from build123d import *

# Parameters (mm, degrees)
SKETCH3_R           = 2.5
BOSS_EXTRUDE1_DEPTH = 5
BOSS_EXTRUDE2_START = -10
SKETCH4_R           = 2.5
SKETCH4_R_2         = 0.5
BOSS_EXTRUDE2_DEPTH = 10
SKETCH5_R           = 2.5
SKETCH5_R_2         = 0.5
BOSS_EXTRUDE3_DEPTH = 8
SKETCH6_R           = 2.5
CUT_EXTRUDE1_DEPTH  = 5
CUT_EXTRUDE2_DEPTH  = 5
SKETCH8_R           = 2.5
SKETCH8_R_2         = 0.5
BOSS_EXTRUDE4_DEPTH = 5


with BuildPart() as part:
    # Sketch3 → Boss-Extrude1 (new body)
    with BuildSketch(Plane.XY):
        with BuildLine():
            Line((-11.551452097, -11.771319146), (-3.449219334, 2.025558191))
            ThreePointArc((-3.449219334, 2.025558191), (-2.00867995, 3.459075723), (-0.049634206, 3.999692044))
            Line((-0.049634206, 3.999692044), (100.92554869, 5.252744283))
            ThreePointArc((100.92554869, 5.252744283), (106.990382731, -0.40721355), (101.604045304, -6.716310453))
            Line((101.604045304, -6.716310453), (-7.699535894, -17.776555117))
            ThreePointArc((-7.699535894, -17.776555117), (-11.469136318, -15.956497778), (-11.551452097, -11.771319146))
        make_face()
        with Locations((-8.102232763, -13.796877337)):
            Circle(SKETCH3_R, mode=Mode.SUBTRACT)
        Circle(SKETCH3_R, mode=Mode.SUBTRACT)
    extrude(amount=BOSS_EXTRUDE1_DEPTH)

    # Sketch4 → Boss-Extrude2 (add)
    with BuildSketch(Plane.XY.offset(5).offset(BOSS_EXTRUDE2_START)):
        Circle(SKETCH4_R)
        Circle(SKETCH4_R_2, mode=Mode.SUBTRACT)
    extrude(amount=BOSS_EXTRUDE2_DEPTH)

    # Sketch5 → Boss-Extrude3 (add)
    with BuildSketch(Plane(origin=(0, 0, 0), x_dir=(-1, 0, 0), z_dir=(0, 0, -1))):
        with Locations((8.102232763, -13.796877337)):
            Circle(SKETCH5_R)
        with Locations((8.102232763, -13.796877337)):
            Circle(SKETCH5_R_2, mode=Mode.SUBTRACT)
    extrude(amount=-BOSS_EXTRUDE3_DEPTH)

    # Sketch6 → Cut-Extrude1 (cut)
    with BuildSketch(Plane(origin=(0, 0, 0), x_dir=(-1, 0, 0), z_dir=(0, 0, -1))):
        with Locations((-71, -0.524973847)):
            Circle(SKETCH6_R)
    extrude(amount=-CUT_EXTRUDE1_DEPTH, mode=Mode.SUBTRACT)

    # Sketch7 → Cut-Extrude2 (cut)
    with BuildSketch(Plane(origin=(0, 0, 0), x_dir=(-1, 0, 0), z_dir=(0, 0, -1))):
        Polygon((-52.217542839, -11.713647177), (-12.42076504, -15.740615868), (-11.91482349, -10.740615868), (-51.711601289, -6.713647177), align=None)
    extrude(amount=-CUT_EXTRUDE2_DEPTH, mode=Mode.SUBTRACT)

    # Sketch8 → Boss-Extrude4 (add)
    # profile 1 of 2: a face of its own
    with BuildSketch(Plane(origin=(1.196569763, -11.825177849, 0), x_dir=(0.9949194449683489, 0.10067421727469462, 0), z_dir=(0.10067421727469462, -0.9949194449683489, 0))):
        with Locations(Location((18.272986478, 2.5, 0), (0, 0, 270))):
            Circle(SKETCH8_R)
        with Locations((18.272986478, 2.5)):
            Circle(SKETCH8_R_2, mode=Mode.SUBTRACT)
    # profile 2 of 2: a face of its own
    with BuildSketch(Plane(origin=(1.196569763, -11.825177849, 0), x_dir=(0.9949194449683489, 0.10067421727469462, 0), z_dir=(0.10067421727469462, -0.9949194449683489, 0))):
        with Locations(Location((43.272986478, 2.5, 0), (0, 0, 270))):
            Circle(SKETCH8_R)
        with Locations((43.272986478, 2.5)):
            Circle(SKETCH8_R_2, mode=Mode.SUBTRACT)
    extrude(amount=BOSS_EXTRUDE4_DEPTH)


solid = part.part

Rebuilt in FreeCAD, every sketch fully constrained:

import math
import FreeCAD as App
import Part
import Sketcher
from FreeCAD import Vector


def add_polygon(sketch, points):
    """Adds a closed chain of lines whose ends are joined by coincident constraints."""
    first, n = sketch.GeometryCount, len(points)
    for a, b in zip(points, points[1:] + points[:1]):
        sketch.addGeometry(Part.LineSegment(App.Vector(*a, 0), App.Vector(*b, 0)), False)
    for i in range(n):
        sketch.addConstraint(Sketcher.Constraint("Coincident", first + i, 2, first + (i + 1) % n, 1))

doc = App.newDocument("Part")
body = doc.addObject("PartDesign::Body", "Body")

# Sketch on XY plane
sketch1 = body.newObject("Sketcher::SketchObject", "Sketch")
sketch1.AttachmentSupport = (doc.getObject("XY_Plane"), [""])
sketch1.MapMode = "FlatFace"
sketch1.addGeometry(Part.LineSegment(Vector(-3.4, 2, 0), Vector(-11.6, -11.8, 0)), False)
sketch1.addGeometry(Part.ArcOfCircle(Part.Circle(Vector(-8.1, -13.8, 0), Vector(0, 0, 1), 4), math.radians(150), math.radians(276)), False)
sketch1.addGeometry(Part.LineSegment(Vector(-7.7, -17.8, 0), Vector(101.6, -6.7, 0)), False)
sketch1.addGeometry(Part.ArcOfCircle(Part.Circle(Vector(101, -0.7, 0), Vector(0, 0, 1), 6), math.radians(-84), math.radians(91)), False)
sketch1.addGeometry(Part.LineSegment(Vector(100.9, 5.3, 0), Vector(0, 4, 0)), False)
sketch1.addGeometry(Part.ArcOfCircle(Part.Circle(Vector(0, 0, 0), Vector(0, 0, 1), 4), math.radians(91), math.radians(150)), False)
sketch1.addGeometry(Part.Circle(Vector(-8.1, -13.8, 0), Vector(0, 0, 1), 2.5), False)
sketch1.addGeometry(Part.Circle(Vector(0, 0, 0), Vector(0, 0, 1), 2.5), False)
sketch1.addConstraint(Sketcher.Constraint("Tangent", 0, 2, 1, 1))
sketch1.addConstraint(Sketcher.Constraint("Tangent", 1, 2, 2, 1))
sketch1.addConstraint(Sketcher.Constraint("Tangent", 2, 2, 3, 1))
sketch1.addConstraint(Sketcher.Constraint("Tangent", 3, 2, 4, 1))
sketch1.addConstraint(Sketcher.Constraint("Tangent", 4, 2, 5, 1))
sketch1.addConstraint(Sketcher.Constraint("Tangent", 5, 2, 0, 1))
sketch1.addConstraint(Sketcher.Constraint("Coincident", 5, 3, -1, 1))
sketch1.addConstraint(Sketcher.Constraint("Coincident", 7, 3, -1, 1))
sketch1.addConstraint(Sketcher.Constraint("Coincident", 6, 3, 1, 3))
sketch1.addConstraint(Sketcher.Constraint("Equal", 1, 5))
sketch1.addConstraint(Sketcher.Constraint("Equal", 6, 7))
sketch1.addConstraint(Sketcher.Constraint("Diameter", 6, 5.0))
sketch1.addConstraint(Sketcher.Constraint("Radius", 1, 4.0))
sketch1.addConstraint(Sketcher.Constraint("Radius", 3, 6.0))
sketch1.addConstraint(Sketcher.Constraint("Distance", 0, 16.0))
sketch1.addConstraint(Sketcher.Constraint("DistanceX", -1, 1, 3, 3, 101.0))
sketch1.addConstraint(Sketcher.Constraint("DistanceX", 1, 3, 4, 2, 8.052599))
sketch1.addConstraint(Sketcher.Constraint("Distance", 2, 109.86174))
pad1 = body.newObject("PartDesign::Pad", "Pad")
pad1.Profile = sketch1
pad1.Length = 5

# Sketch on XY plane
sketch2 = body.newObject("Sketcher::SketchObject", "Sketch001")
sketch2.AttachmentSupport = (doc.getObject("XY_Plane"), [""])
sketch2.MapMode = "FlatFace"
sketch2.AttachmentOffset = App.Placement(Vector(0, 0, -5), App.Rotation())
sketch2.addGeometry(Part.Circle(Vector(0, 0, 0), Vector(0, 0, 1), 2.5), False)
sketch2.addGeometry(Part.Circle(Vector(0, 0, 0), Vector(0, 0, 1), 0.5), False)
sketch2.addConstraint(Sketcher.Constraint("Coincident", 0, 3, -1, 1))
sketch2.addConstraint(Sketcher.Constraint("Coincident", 1, 3, -1, 1))
sketch2.addConstraint(Sketcher.Constraint("Diameter", 0, 5.0))
sketch2.addConstraint(Sketcher.Constraint("Diameter", 1, 1.0))
pad2 = body.newObject("PartDesign::Pad", "Pad001")
pad2.Profile = sketch2
pad2.Length = 10

# Sketch on XY plane
sketch3 = body.newObject("Sketcher::SketchObject", "Sketch002")
sketch3.AttachmentSupport = (doc.getObject("XY_Plane"), [""])
sketch3.MapMode = "FlatFace"
sketch3.addGeometry(Part.Circle(Vector(-8.1, -13.8, 0), Vector(0, 0, 1), 2.5), False)
sketch3.addGeometry(Part.Circle(Vector(-8.1, -13.8, 0), Vector(0, 0, 1), 0.5), False)
sketch3.addConstraint(Sketcher.Constraint("Coincident", 1, 3, 0, 3))
sketch3.addConstraint(Sketcher.Constraint("Diameter", 0, 5.0))
sketch3.addConstraint(Sketcher.Constraint("Diameter", 1, 1.0))
sketch3.addConstraint(Sketcher.Constraint("DistanceX", 0, 3, -1, 1, 8.102233))
sketch3.addConstraint(Sketcher.Constraint("DistanceY", 0, 3, -1, 1, 13.796877))
pad3 = body.newObject("PartDesign::Pad", "Pad002")
pad3.Profile = sketch3
pad3.Length = 8

# Sketch on XY plane
sketch4 = body.newObject("Sketcher::SketchObject", "Sketch003")
sketch4.AttachmentSupport = (doc.getObject("XY_Plane"), [""])
sketch4.MapMode = "FlatFace"
sketch4.addGeometry(Part.Circle(Vector(71, -0.5, 0), Vector(0, 0, 1), 2.5), False)
sketch4.addConstraint(Sketcher.Constraint("Diameter", 0, 5.0))
sketch4.addConstraint(Sketcher.Constraint("DistanceX", -1, 1, 0, 3, 71.0))
sketch4.addConstraint(Sketcher.Constraint("DistanceY", 0, 3, -1, 1, 0.524974))
pocket1 = body.newObject("PartDesign::Pocket", "Pocket")
pocket1.Profile = sketch4
pocket1.Length = 5
pocket1.Reversed = True

# Sketch on XY plane
sketch5 = body.newObject("Sketcher::SketchObject", "Sketch004")
sketch5.AttachmentSupport = (doc.getObject("XY_Plane"), [""])
sketch5.MapMode = "FlatFace"
add_polygon(sketch5, [(52, -12), (12, -16), (12, -11), (52, -7)])  # lines 0-3
sketch5.addConstraint(Sketcher.Constraint("Perpendicular", 0, 1))
sketch5.addConstraint(Sketcher.Constraint("Perpendicular", 1, 2))
sketch5.addConstraint(Sketcher.Constraint("Perpendicular", 2, 3))
sketch5.addConstraint(Sketcher.Constraint("Distance", 0, 40.0))
sketch5.addConstraint(Sketcher.Constraint("DistanceY", 0, 2, 1, 2, 5.0))
sketch5.addConstraint(Sketcher.Constraint("DistanceX", -1, 1, 2, 2, 51.711601))
sketch5.addConstraint(Sketcher.Constraint("DistanceX", 1, 2, 0, 2, 0.505942))
sketch5.addConstraint(Sketcher.Constraint("DistanceY", 0, 2, -1, 1, 15.740616))
pocket2 = body.newObject("PartDesign::Pocket", "Pocket001")
pocket2.Profile = sketch5
pocket2.Length = 5
pocket2.Reversed = True

# Sketch on an angled plane
sketch6 = body.newObject("Sketcher::SketchObject", "Sketch005")
sketch6.Placement = App.Placement(Vector(1.19657, -11.825178, 0), App.Rotation(Vector(0.994919445, 0.100674217, 0), Vector(0, 0, 1), Vector(0.100674217, -0.994919445, 0), "ZXY"))
sketch6.addGeometry(Part.Circle(Vector(18.3, 2.5, 0), Vector(0, 0, 1), 2.5), False)
sketch6.addGeometry(Part.Circle(Vector(18.3, 2.5, 0), Vector(0, 0, 1), 0.5), False)
sketch6.addGeometry(Part.Circle(Vector(43.3, 2.5, 0), Vector(0, 0, 1), 2.5), False)
sketch6.addGeometry(Part.Circle(Vector(43.3, 2.5, 0), Vector(0, 0, 1), 0.5), False)
sketch6.addConstraint(Sketcher.Constraint("Coincident", 1, 3, 0, 3))
sketch6.addConstraint(Sketcher.Constraint("Coincident", 3, 3, 2, 3))
sketch6.addConstraint(Sketcher.Constraint("Equal", 0, 2))
sketch6.addConstraint(Sketcher.Constraint("Equal", 1, 3))
sketch6.addConstraint(Sketcher.Constraint("Horizontal", 1, 3, 2, 3))
sketch6.addConstraint(Sketcher.Constraint("Diameter", 0, 5.0))
sketch6.addConstraint(Sketcher.Constraint("Diameter", 1, 1.0))
sketch6.addConstraint(Sketcher.Constraint("DistanceX", 0, 3, 2, 3, 25.0))
sketch6.addConstraint(Sketcher.Constraint("DistanceY", -1, 1, 0, 3, 2.5))
sketch6.addConstraint(Sketcher.Constraint("DistanceX", -1, 1, 0, 3, 18.272986))
pad4 = body.newObject("PartDesign::Pad", "Pad003")
pad4.Profile = sketch6
pad4.Length = 5

doc.recompute()
